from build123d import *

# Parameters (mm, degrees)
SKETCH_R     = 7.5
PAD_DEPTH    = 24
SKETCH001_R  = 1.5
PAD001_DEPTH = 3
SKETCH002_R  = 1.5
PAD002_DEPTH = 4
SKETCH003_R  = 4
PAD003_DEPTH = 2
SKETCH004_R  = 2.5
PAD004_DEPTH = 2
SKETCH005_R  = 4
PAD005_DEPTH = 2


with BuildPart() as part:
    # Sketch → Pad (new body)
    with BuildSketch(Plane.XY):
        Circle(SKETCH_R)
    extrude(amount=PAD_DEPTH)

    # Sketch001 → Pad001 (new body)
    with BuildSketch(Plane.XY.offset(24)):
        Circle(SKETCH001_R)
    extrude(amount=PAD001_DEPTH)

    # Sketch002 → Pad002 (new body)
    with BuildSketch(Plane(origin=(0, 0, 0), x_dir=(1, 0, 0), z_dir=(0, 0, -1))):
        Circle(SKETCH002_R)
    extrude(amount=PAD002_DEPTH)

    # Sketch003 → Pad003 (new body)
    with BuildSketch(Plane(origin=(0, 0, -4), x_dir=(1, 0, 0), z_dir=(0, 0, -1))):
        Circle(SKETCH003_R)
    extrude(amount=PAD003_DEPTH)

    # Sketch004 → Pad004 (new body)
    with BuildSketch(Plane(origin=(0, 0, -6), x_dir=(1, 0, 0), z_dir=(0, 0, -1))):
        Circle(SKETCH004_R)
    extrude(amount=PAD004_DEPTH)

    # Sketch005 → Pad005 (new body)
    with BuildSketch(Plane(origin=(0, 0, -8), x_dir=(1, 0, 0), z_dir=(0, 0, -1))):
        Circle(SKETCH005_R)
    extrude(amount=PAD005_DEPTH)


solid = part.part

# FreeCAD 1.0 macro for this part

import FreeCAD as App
import Part
import Sketcher
Q = App.Units.Quantity

doc = App.newDocument("Part")
body = doc.addObject("PartDesign::Body", "Body")

sketch1 = doc.addObject("Sketcher::SketchObject", "Sketch")
body.addObject(sketch1)
sketch1.AttachmentSupport = (doc.XY_Plane, [""])
sketch1.MapMode = "FlatFace"
sketch1.addGeometry(Part.Circle(App.Vector(0, 0, 0), App.Vector(0, 0, 1), 7.5), False)
sketch1.addConstraint(Sketcher.Constraint("Coincident", 0, 3, -1, 1))
sketch1.addConstraint(Sketcher.Constraint("Diameter", 0, Q("15 mm")))
pad1 = doc.addObject("PartDesign::Pad", "Pad")
body.addObject(pad1)
pad1.Profile = sketch1
pad1.Length = 24

sketch2 = doc.addObject("Sketcher::SketchObject", "Sketch001")
body.addObject(sketch2)
sketch2.AttachmentSupport = (doc.XY_Plane, [""])
sketch2.MapMode = "FlatFace"
sketch2.AttachmentOffset = App.Placement(App.Vector(0, 0, 24), App.Rotation())
sketch2.addGeometry(Part.Circle(App.Vector(0, 0, 0), App.Vector(0, 0, 1), 1.5), False)
sketch2.addConstraint(Sketcher.Constraint("Coincident", 0, 3, -1, 1))
sketch2.addConstraint(Sketcher.Constraint("Diameter", 0, Q("3 mm")))
pad2 = doc.addObject("PartDesign::Pad", "Pad001")
body.addObject(pad2)
pad2.Profile = sketch2
pad2.Length = 3

sketch3 = doc.addObject("Sketcher::SketchObject", "Sketch002")
body.addObject(sketch3)
sketch3.AttachmentSupport = (doc.XY_Plane, [""])
sketch3.MapMode = "FlatFace"
sketch3.addGeometry(Part.Circle(App.Vector(0, 0, 0), App.Vector(0, 0, 1), 1.5), False)
sketch3.addConstraint(Sketcher.Constraint("Coincident", 0, 3, -1, 1))
sketch3.addConstraint(Sketcher.Constraint("Diameter", 0, Q("3 mm")))
pad3 = doc.addObject("PartDesign::Pad", "Pad002")
body.addObject(pad3)
pad3.Profile = sketch3
pad3.Length = 4
pad3.Reversed = True

sketch4 = doc.addObject("Sketcher::SketchObject", "Sketch003")
body.addObject(sketch4)
sketch4.AttachmentSupport = (doc.XY_Plane, [""])
sketch4.MapMode = "FlatFace"
sketch4.AttachmentOffset = App.Placement(App.Vector(0, 0, -4), App.Rotation())
sketch4.addGeometry(Part.Circle(App.Vector(0, 0, 0), App.Vector(0, 0, 1), 4), False)
sketch4.addConstraint(Sketcher.Constraint("Coincident", 0, 3, -1, 1))
sketch4.addConstraint(Sketcher.Constraint("Diameter", 0, Q("8 mm")))
pad4 = doc.addObject("PartDesign::Pad", "Pad003")
body.addObject(pad4)
pad4.Profile = sketch4
pad4.Length = 2
pad4.Reversed = True

sketch5 = doc.addObject("Sketcher::SketchObject", "Sketch004")
body.addObject(sketch5)
sketch5.AttachmentSupport = (doc.XY_Plane, [""])
sketch5.MapMode = "FlatFace"
sketch5.AttachmentOffset = App.Placement(App.Vector(0, 0, -6), App.Rotation())
sketch5.addGeometry(Part.Circle(App.Vector(0, 0, 0), App.Vector(0, 0, 1), 2.5), False)
sketch5.addConstraint(Sketcher.Constraint("Coincident", 0, 3, -1, 1))
sketch5.addConstraint(Sketcher.Constraint("Diameter", 0, Q("5 mm")))
pad5 = doc.addObject("PartDesign::Pad", "Pad004")
body.addObject(pad5)
pad5.Profile = sketch5
pad5.Length = 2
pad5.Reversed = True

sketch6 = doc.addObject("Sketcher::SketchObject", "Sketch005")
body.addObject(sketch6)
sketch6.AttachmentSupport = (doc.XY_Plane, [""])
sketch6.MapMode = "FlatFace"
sketch6.AttachmentOffset = App.Placement(App.Vector(0, 0, -8), App.Rotation())
sketch6.addGeometry(Part.Circle(App.Vector(0, 0, 0), App.Vector(0, 0, 1), 4), False)
sketch6.addConstraint(Sketcher.Constraint("Coincident", 0, 3, -1, 1))
sketch6.addConstraint(Sketcher.Constraint("Diameter", 0, Q("8 mm")))
pad6 = doc.addObject("PartDesign::Pad", "Pad005")
body.addObject(pad6)
pad6.Profile = sketch6
pad6.Length = 2
pad6.Reversed = True

doc.recompute()
